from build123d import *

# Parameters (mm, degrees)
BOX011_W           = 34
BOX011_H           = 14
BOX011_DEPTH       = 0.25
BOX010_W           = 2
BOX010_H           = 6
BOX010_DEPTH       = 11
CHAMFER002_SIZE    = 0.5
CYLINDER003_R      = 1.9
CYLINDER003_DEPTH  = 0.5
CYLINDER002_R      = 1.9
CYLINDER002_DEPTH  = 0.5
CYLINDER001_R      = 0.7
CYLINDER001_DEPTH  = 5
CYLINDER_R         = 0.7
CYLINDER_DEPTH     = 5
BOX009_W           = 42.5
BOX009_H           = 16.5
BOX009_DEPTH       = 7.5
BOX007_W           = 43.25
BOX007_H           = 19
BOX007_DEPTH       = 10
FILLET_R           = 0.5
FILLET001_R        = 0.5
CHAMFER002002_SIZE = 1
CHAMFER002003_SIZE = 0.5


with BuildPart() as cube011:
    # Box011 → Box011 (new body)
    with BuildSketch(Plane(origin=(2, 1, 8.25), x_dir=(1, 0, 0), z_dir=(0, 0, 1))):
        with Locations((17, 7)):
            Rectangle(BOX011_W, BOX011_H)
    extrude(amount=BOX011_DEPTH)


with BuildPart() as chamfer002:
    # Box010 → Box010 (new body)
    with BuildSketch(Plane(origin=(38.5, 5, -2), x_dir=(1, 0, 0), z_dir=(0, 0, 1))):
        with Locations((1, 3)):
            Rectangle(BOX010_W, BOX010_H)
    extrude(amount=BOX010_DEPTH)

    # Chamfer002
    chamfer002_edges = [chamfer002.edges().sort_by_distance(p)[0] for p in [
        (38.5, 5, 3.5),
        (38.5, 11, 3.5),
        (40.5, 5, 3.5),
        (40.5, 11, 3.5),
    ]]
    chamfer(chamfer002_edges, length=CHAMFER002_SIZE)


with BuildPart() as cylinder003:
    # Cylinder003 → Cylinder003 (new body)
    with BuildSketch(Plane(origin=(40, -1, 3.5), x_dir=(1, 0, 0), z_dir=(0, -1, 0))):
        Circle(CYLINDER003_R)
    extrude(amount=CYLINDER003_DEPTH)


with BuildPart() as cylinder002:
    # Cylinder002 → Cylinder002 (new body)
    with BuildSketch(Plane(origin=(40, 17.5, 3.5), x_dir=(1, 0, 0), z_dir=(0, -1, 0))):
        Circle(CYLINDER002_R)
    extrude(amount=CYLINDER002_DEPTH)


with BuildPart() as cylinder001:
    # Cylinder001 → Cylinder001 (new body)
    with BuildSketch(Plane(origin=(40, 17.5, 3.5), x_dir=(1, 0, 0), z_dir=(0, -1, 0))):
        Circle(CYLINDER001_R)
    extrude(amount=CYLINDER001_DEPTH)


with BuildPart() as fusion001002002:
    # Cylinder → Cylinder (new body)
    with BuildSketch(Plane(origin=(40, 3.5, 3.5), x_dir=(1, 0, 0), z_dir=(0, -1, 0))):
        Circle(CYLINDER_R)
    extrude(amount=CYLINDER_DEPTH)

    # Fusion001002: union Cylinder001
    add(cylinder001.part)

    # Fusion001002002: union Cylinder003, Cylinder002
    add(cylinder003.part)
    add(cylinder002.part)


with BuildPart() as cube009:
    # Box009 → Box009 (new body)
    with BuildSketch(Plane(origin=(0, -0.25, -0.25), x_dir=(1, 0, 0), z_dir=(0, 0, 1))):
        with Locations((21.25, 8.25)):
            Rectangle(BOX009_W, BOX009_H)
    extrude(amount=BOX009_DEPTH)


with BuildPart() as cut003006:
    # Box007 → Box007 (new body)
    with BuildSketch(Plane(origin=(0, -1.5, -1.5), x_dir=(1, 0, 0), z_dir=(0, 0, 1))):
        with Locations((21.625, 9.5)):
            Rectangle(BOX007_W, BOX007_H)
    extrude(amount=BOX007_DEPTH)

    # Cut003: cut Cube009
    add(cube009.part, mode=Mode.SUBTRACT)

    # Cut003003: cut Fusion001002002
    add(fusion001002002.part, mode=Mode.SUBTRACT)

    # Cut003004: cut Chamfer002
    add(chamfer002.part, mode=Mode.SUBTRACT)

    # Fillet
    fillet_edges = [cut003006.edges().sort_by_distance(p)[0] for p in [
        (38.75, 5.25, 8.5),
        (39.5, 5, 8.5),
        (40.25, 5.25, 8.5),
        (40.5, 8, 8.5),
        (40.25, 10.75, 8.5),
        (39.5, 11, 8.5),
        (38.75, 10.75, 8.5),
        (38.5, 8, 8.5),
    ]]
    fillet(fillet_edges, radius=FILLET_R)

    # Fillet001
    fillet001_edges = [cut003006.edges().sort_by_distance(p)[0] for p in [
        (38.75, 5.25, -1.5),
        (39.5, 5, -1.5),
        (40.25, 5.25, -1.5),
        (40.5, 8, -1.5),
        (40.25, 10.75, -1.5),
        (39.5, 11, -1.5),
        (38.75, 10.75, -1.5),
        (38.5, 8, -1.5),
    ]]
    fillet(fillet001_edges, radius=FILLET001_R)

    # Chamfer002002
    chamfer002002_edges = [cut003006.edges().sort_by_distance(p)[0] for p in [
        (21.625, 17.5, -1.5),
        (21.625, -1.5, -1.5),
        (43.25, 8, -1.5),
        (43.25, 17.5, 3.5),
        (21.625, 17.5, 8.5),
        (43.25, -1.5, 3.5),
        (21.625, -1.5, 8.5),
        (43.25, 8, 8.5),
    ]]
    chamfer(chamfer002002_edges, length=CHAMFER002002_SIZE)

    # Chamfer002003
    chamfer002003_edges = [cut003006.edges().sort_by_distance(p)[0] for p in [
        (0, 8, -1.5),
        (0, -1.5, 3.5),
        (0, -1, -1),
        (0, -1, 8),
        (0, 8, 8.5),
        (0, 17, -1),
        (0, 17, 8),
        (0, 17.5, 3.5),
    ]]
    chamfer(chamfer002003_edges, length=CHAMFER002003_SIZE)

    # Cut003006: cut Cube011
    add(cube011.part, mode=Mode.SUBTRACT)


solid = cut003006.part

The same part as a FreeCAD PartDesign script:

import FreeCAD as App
import Part
import Sketcher

V = App.Vector
Q = App.Units.Quantity


def edges_at(feature, points):
    """Names of the edges that pass closest to the given points."""
    edges = feature.Shape.Edges
    near = lambda p: min(range(len(edges)), key=lambda i: edges[i].distToShape(Part.Vertex(*p))[0])
    return sorted({f"Edge{near(p) + 1}" for p in points})


def add_polygon(sketch, points):
    """Adds a closed chain of lines whose ends are joined by coincident constraints."""
    first, n = sketch.GeometryCount, len(points)
    for a, b in zip(points, points[1:] + points[:1]):
        sketch.addGeometry(Part.LineSegment(App.Vector(*a, 0), App.Vector(*b, 0)), False)
    for i in range(n):
        sketch.addConstraint(Sketcher.Constraint("Coincident", first + i, 2, first + (i + 1) % n, 1))

doc = App.newDocument("Part")
body = doc.addObject("PartDesign::Body", "Body")

# Sketch on XY plane
sketch1 = body.newObject("Sketcher::SketchObject", "Sketch")
sketch1.AttachmentSupport = (doc.getObject("XY_Plane"), [""])
sketch1.MapMode = "FlatFace"
sketch1.AttachmentOffset = App.Placement(V(0, 0, 8.25), App.Rotation())
add_polygon(sketch1, [(2, 15), (2, 1), (36, 1), (36, 15)])  # lines 0-3
sketch1.addConstraint(Sketcher.Constraint("Vertical", 0))
sketch1.addConstraint(Sketcher.Constraint("Horizontal", 1))
sketch1.addConstraint(Sketcher.Constraint("Vertical", 2))
sketch1.addConstraint(Sketcher.Constraint("Horizontal", 3))
sketch1.addConstraint(Sketcher.Constraint("DistanceX", 1, 1, 1, 2, Q("34 mm")))
sketch1.addConstraint(Sketcher.Constraint("DistanceY", 0, 2, 0, 1, Q("14 mm")))
sketch1.addConstraint(Sketcher.Constraint("DistanceX", -1, 1, 0, 2, Q("2 mm")))
sketch1.addConstraint(Sketcher.Constraint("DistanceY", -1, 1, 0, 2, Q("1 mm")))
pad1 = body.newObject("PartDesign::Pad", "Pad")
pad1.Profile = sketch1
pad1.Length = 0.25
body2 = doc.addObject("PartDesign::Body", "Body001")

# Sketch on XY plane
sketch2 = body2.newObject("Sketcher::SketchObject", "Sketch001")
sketch2.AttachmentSupport = (doc.getObject("XY_Plane001"), [""])
sketch2.MapMode = "FlatFace"
sketch2.AttachmentOffset = App.Placement(V(0, 0, -2), App.Rotation())
add_polygon(sketch2, [(38.5, 11), (38.5, 5), (40.5, 5), (40.5, 11)])  # lines 0-3
sketch2.addConstraint(Sketcher.Constraint("Vertical", 0))
sketch2.addConstraint(Sketcher.Constraint("Horizontal", 1))
sketch2.addConstraint(Sketcher.Constraint("Vertical", 2))
sketch2.addConstraint(Sketcher.Constraint("Horizontal", 3))
sketch2.addConstraint(Sketcher.Constraint("DistanceX", 1, 1, 1, 2, Q("2 mm")))
sketch2.addConstraint(Sketcher.Constraint("DistanceY", 0, 2, 0, 1, Q("6 mm")))
sketch2.addConstraint(Sketcher.Constraint("DistanceY", -1, 1, 0, 2, Q("5 mm")))
sketch2.addConstraint(Sketcher.Constraint("DistanceX", -1, 1, 0, 2, Q("38.5 mm")))
pad2 = body2.newObject("PartDesign::Pad", "Pad001")
pad2.Profile = sketch2
pad2.Length = 11
doc.recompute()

chamfer = body2.newObject("PartDesign::Chamfer", "Chamfer")
chamfer.Base = (pad2, edges_at(pad2, [
    (38.5, 5, 3.5),
    (38.5, 11, 3.5),
    (40.5, 5, 3.5),
    (40.5, 11, 3.5),
]))
chamfer.Size = 0.5
body3 = doc.addObject("PartDesign::Body", "Body002")

# Sketch on XZ plane
sketch3 = body3.newObject("Sketcher::SketchObject", "Sketch002")
sketch3.AttachmentSupport = (doc.getObject("XZ_Plane002"), [""])
sketch3.MapMode = "FlatFace"
sketch3.AttachmentOffset = App.Placement(V(0, 0, 1), App.Rotation())
sketch3.addGeometry(Part.Circle(V(40, 3.5, 0), V(0, 0, 1), 1.9), False)
sketch3.addConstraint(Sketcher.Constraint("Diameter", 0, Q("3.8 mm")))
sketch3.addConstraint(Sketcher.Constraint("DistanceX", -1, 1, 0, 3, Q("40 mm")))
sketch3.addConstraint(Sketcher.Constraint("DistanceY", -1, 1, 0, 3, Q("3.5 mm")))
pad3 = body3.newObject("PartDesign::Pad", "Pad002")
pad3.Profile = sketch3
pad3.Length = 0.5
body4 = doc.addObject("PartDesign::Body", "Body003")

# Sketch on XZ plane
sketch4 = body4.newObject("Sketcher::SketchObject", "Sketch003")
sketch4.AttachmentSupport = (doc.getObject("XZ_Plane003"), [""])
sketch4.MapMode = "FlatFace"
sketch4.AttachmentOffset = App.Placement(V(0, 0, -17.5), App.Rotation())
sketch4.addGeometry(Part.Circle(V(40, 3.5, 0), V(0, 0, 1), 1.9), False)
sketch4.addConstraint(Sketcher.Constraint("Diameter", 0, Q("3.8 mm")))
sketch4.addConstraint(Sketcher.Constraint("DistanceX", -1, 1, 0, 3, Q("40 mm")))
sketch4.addConstraint(Sketcher.Constraint("DistanceY", -1, 1, 0, 3, Q("3.5 mm")))
pad4 = body4.newObject("PartDesign::Pad", "Pad003")
pad4.Profile = sketch4
pad4.Length = 0.5
body5 = doc.addObject("PartDesign::Body", "Body004")

# Sketch on XZ plane
sketch5 = body5.newObject("Sketcher::SketchObject", "Sketch004")
sketch5.AttachmentSupport = (doc.getObject("XZ_Plane004"), [""])
sketch5.MapMode = "FlatFace"
sketch5.AttachmentOffset = App.Placement(V(0, 0, -17.5), App.Rotation())
sketch5.addGeometry(Part.Circle(V(40, 3.5, 0), V(0, 0, 1), 0.7), False)
sketch5.addConstraint(Sketcher.Constraint("Diameter", 0, Q("1.4 mm")))
sketch5.addConstraint(Sketcher.Constraint("DistanceX", -1, 1, 0, 3, Q("40 mm")))
sketch5.addConstraint(Sketcher.Constraint("DistanceY", -1, 1, 0, 3, Q("3.5 mm")))
pad5 = body5.newObject("PartDesign::Pad", "Pad004")
pad5.Profile = sketch5
pad5.Length = 5
body6 = doc.addObject("PartDesign::Body", "Body005")
body6.AllowCompound = True

# Sketch on XZ plane
sketch6 = body6.newObject("Sketcher::SketchObject", "Sketch005")
sketch6.AttachmentSupport = (doc.getObject("XZ_Plane005"), [""])
sketch6.MapMode = "FlatFace"
sketch6.AttachmentOffset = App.Placement(V(0, 0, -3.5), App.Rotation())
sketch6.addGeometry(Part.Circle(V(40, 3.5, 0), V(0, 0, 1), 0.7), False)
sketch6.addConstraint(Sketcher.Constraint("Diameter", 0, Q("1.4 mm")))
sketch6.addConstraint(Sketcher.Constraint("DistanceX", -1, 1, 0, 3, Q("40 mm")))
sketch6.addConstraint(Sketcher.Constraint("DistanceY", -1, 1, 0, 3, Q("3.5 mm")))
pad6 = body6.newObject("PartDesign::Pad", "Pad005")
pad6.Profile = sketch6
pad6.Length = 5
doc.recompute()

boolean = body6.newObject("PartDesign::Boolean", "Boolean")
boolean.Type = "Fuse"
boolean.addObjects([body5])
doc.recompute()

boolean2 = body6.newObject("PartDesign::Boolean", "Boolean001")
boolean2.Type = "Fuse"
boolean2.addObjects([body3])
doc.recompute()

boolean3 = body6.newObject("PartDesign::Boolean", "Boolean002")
boolean3.Type = "Fuse"
boolean3.addObjects([body4])
body7 = doc.addObject("PartDesign::Body", "Body006")

# Sketch on XY plane
sketch7 = body7.newObject("Sketcher::SketchObject", "Sketch006")
sketch7.AttachmentSupport = (doc.getObject("XY_Plane006"), [""])
sketch7.MapMode = "FlatFace"
sketch7.AttachmentOffset = App.Placement(V(0, 0, -0.25), App.Rotation())
add_polygon(sketch7, [(0, 16), (0, 0), (42, 0), (42, 16)])  # lines 0-3
sketch7.addConstraint(Sketcher.Constraint("Vertical", 0))
sketch7.addConstraint(Sketcher.Constraint("Horizontal", 1))
sketch7.addConstraint(Sketcher.Constraint("Vertical", 2))
sketch7.addConstraint(Sketcher.Constraint("Horizontal", 3))
sketch7.addConstraint(Sketcher.Constraint("PointOnObject", 0, 2, -2))
sketch7.addConstraint(Sketcher.Constraint("DistanceX", 1, 1, 1, 2, Q("42.5 mm")))
sketch7.addConstraint(Sketcher.Constraint("DistanceY", 0, 2, 0, 1, Q("16.5 mm")))
sketch7.addConstraint(Sketcher.Constraint("DistanceY", 0, 2, -1, 1, Q("0.25 mm")))
pad7 = body7.newObject("PartDesign::Pad", "Pad006")
pad7.Profile = sketch7
pad7.Length = 7.5
body8 = doc.addObject("PartDesign::Body", "Body007")

# Sketch on XY plane
sketch8 = body8.newObject("Sketcher::SketchObject", "Sketch007")
sketch8.AttachmentSupport = (doc.getObject("XY_Plane007"), [""])
sketch8.MapMode = "FlatFace"
sketch8.AttachmentOffset = App.Placement(V(0, 0, -1.5), App.Rotation())
add_polygon(sketch8, [(0, 18), (0, -2), (43, -2), (43, 18)])  # lines 0-3
sketch8.addConstraint(Sketcher.Constraint("Vertical", 0))
sketch8.addConstraint(Sketcher.Constraint("Horizontal", 1))
sketch8.addConstraint(Sketcher.Constraint("Vertical", 2))
sketch8.addConstraint(Sketcher.Constraint("Horizontal", 3))
sketch8.addConstraint(Sketcher.Constraint("PointOnObject", 0, 2, -2))
sketch8.addConstraint(Sketcher.Constraint("DistanceY", 0, 2, 0, 1, Q("19 mm")))
sketch8.addConstraint(Sketcher.Constraint("DistanceX", 1, 1, 1, 2, Q("43.25 mm")))
sketch8.addConstraint(Sketcher.Constraint("DistanceY", 0, 2, -1, 1, Q("1.5 mm")))
pad8 = body8.newObject("PartDesign::Pad", "Pad007")
pad8.Profile = sketch8
pad8.Length = 10
doc.recompute()

boolean4 = body8.newObject("PartDesign::Boolean", "Boolean003")
boolean4.Type = "Cut"
boolean4.addObjects([body7])
doc.recompute()

boolean5 = body8.newObject("PartDesign::Boolean", "Boolean004")
boolean5.Type = "Cut"
boolean5.addObjects([body6])
doc.recompute()

boolean6 = body8.newObject("PartDesign::Boolean", "Boolean005")
boolean6.Type = "Cut"
boolean6.addObjects([body2])
doc.recompute()

fillet = body8.newObject("PartDesign::Fillet", "Fillet")
fillet.Base = (boolean6, edges_at(boolean6, [
    (38.75, 5.25, 8.5),
    (39.5, 5, 8.5),
    (40.25, 5.25, 8.5),
    (40.5, 8, 8.5),
    (40.25, 10.75, 8.5),
    (39.5, 11, 8.5),
    (38.75, 10.75, 8.5),
    (38.5, 8, 8.5),
]))
fillet.Radius = 0.5
doc.recompute()

fillet2 = body8.newObject("PartDesign::Fillet", "Fillet001")
fillet2.Base = (fillet, edges_at(fillet, [
    (38.75, 5.25, -1.5),
    (39.5, 5, -1.5),
    (40.25, 5.25, -1.5),
    (40.5, 8, -1.5),
    (40.25, 10.75, -1.5),
    (39.5, 11, -1.5),
    (38.75, 10.75, -1.5),
    (38.5, 8, -1.5),
]))
fillet2.Radius = 0.5
doc.recompute()

chamfer2 = body8.newObject("PartDesign::Chamfer", "Chamfer001")
chamfer2.Base = (fillet2, edges_at(fillet2, [
    (21.625, 17.5, -1.5),
    (21.625, -1.5, -1.5),
    (43.25, 8, -1.5),
    (43.25, 17.5, 3.5),
    (21.625, 17.5, 8.5),
    (43.25, -1.5, 3.5),
    (21.625, -1.5, 8.5),
    (43.25, 8, 8.5),
]))
chamfer2.Size = 1
doc.recompute()

chamfer3 = body8.newObject("PartDesign::Chamfer", "Chamfer002")
chamfer3.Base = (chamfer2, edges_at(chamfer2, [
    (0, 8, -1.5),
    (0, -1.5, 3.5),
    (0, -1, -1),
    (0, -1, 8),
    (0, 8, 8.5),
    (0, 17, -1),
    (0, 17, 8),
    (0, 17.5, 3.5),
]))
chamfer3.Size = 0.5
doc.recompute()

boolean7 = body8.newObject("PartDesign::Boolean", "Boolean006")
boolean7.Type = "Cut"
boolean7.addObjects([body])

doc.recompute()
